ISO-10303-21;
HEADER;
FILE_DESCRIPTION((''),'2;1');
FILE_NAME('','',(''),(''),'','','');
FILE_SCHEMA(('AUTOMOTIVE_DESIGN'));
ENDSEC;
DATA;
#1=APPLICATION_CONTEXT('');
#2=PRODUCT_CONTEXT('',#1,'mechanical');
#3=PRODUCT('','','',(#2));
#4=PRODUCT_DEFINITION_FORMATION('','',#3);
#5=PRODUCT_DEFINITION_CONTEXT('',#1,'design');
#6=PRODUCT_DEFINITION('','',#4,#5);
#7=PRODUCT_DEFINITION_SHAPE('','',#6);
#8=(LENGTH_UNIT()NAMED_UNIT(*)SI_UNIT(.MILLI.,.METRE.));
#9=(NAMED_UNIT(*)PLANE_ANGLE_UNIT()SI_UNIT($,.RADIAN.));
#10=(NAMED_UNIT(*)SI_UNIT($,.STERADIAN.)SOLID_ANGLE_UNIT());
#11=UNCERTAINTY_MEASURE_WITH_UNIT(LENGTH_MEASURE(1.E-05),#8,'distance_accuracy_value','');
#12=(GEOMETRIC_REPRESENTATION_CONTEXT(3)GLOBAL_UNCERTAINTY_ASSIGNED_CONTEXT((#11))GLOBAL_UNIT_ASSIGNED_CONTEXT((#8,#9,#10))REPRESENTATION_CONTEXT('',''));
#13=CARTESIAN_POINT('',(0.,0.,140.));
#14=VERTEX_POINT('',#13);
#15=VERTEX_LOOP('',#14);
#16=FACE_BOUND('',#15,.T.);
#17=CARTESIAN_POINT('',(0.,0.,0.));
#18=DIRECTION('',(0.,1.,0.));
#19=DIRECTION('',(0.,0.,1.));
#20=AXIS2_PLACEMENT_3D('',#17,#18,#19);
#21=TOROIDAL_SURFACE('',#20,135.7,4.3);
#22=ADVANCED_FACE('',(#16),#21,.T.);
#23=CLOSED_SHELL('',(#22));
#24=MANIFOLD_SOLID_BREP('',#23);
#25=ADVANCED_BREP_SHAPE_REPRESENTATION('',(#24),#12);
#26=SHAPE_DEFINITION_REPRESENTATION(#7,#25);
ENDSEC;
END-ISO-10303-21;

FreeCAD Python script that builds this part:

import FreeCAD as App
import Part
import Sketcher
from FreeCAD import Vector

doc = App.newDocument("Part")
body = doc.addObject("PartDesign::Body", "Body")

sketch1 = body.newObject("Sketcher::SketchObject", "Sketch")
sketch1.AttachmentSupport = (doc.getObject("XY_Plane"), [""])
sketch1.MapMode = "FlatFace"
sketch1.addGeometry(Part.Circle(Vector(135.7, 0, 0), Vector(0, 0, 1), 4.3), False)
sketch1.addConstraint([
    Sketcher.Constraint("PointOnObject", 0, 3, -1),
    Sketcher.Constraint("Diameter", 0, 8.6),
    Sketcher.Constraint("DistanceX", -1, 1, 0, 3, 135.7),
])
revolution = body.newObject("PartDesign::Revolution", "Revolution")
revolution.Profile = sketch1
revolution.ReferenceAxis = (sketch1, ["V_Axis"])
revolution.Angle = 360

doc.recompute()
